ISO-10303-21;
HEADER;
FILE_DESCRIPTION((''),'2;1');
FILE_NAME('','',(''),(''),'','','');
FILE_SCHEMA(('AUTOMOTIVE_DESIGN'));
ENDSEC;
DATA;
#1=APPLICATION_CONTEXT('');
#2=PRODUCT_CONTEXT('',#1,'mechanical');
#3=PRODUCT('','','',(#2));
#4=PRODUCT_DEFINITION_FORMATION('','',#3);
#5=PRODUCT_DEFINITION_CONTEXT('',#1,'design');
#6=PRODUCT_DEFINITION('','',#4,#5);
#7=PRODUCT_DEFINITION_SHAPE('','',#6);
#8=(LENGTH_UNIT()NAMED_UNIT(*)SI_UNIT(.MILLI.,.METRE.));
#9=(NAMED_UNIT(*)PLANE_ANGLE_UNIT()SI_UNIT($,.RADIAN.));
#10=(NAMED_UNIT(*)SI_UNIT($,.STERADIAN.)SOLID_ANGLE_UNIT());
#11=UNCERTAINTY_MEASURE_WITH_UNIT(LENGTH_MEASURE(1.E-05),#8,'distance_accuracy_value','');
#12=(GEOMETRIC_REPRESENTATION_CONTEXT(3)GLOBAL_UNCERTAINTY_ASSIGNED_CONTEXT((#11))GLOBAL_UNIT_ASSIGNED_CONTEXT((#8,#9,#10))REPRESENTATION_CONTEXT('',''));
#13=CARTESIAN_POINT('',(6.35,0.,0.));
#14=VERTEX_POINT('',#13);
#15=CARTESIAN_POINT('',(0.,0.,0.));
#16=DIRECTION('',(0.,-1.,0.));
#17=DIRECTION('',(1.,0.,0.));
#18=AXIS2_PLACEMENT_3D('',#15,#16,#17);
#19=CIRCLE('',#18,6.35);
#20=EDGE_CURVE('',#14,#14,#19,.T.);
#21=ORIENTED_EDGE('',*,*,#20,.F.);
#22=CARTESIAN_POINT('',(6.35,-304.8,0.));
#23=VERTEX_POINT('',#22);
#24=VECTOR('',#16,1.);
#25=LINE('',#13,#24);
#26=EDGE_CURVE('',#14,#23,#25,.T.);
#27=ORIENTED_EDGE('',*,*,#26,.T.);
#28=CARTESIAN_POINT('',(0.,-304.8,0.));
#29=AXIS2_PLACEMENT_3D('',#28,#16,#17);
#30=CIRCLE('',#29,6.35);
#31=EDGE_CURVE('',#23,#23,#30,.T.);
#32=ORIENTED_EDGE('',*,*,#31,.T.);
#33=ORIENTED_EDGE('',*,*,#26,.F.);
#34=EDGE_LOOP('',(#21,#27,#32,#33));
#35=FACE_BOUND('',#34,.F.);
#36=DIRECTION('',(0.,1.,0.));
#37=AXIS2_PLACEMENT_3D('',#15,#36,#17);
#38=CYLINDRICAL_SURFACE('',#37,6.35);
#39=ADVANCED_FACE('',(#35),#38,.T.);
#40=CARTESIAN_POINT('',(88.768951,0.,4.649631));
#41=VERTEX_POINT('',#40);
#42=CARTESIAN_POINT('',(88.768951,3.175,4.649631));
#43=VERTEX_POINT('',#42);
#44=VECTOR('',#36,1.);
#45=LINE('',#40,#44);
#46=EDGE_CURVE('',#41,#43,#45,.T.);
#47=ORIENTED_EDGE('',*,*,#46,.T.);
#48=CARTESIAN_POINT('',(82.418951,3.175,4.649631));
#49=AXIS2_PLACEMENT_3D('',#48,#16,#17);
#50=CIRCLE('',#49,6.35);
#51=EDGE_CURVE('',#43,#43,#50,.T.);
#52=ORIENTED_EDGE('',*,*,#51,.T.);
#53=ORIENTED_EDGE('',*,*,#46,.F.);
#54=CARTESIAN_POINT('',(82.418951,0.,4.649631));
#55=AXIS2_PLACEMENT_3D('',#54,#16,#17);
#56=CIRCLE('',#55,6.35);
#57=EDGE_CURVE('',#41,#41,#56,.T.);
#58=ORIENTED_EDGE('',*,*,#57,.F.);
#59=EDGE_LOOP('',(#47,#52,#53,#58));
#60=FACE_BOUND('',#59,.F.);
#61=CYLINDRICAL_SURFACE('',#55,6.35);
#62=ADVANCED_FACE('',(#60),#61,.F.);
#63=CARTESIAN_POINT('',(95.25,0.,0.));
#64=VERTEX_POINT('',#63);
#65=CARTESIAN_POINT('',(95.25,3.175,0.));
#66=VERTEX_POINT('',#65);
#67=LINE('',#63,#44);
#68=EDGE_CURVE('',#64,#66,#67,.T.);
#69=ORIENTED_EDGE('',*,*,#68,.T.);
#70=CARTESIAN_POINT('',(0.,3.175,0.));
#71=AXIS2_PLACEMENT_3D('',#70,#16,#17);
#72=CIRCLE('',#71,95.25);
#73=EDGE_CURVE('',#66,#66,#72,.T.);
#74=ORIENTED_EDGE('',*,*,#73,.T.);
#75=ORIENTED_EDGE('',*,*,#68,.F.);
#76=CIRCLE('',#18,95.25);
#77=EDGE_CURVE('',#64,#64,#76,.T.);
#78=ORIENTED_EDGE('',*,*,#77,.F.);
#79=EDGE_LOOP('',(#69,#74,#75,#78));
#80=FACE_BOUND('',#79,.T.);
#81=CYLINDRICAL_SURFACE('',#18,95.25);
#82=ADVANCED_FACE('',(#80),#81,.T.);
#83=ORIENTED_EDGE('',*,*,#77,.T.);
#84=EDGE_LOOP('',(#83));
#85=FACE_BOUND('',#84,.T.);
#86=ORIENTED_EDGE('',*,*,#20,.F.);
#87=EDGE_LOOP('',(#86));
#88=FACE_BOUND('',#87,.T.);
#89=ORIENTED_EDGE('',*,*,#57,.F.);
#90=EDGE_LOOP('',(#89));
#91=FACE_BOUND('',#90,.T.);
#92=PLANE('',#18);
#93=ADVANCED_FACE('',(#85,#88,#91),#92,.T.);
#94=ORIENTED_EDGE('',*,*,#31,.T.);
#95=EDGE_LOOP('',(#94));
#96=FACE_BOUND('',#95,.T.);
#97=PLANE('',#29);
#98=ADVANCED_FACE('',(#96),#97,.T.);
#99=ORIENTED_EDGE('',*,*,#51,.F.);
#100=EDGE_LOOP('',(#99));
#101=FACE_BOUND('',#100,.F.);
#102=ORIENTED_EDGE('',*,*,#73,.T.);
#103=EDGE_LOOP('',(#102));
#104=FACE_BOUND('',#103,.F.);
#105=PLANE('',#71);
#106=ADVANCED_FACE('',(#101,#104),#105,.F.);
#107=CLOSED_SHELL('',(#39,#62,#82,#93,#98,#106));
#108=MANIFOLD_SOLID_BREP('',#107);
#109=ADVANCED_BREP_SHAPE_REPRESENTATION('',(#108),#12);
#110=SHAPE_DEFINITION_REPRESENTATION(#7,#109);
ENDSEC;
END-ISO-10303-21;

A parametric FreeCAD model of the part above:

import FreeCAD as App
import Part
import Sketcher
from FreeCAD import Vector
Q = App.Units.Quantity

doc = App.newDocument("Part")
body = doc.addObject("PartDesign::Body", "Body")

# Sketch on XZ plane
sketch1 = doc.addObject("Sketcher::SketchObject", "Sketch")
body.addObject(sketch1)
sketch1.AttachmentSupport = (doc.XZ_Plane, [""])
sketch1.MapMode = "FlatFace"
sketch1.addGeometry([
    Part.Circle(Vector(0, 0, 0), Vector(0, 0, 1), 95),
    Part.Circle(Vector(0, 0, 0), Vector(0, 0, 1), 6),
    Part.Circle(Vector(82, 5, 0), Vector(0, 0, 1), 6),
], False)
sketch1.addConstraint([
    Sketcher.Constraint("Coincident", 0, 3, -1, 1),
    Sketcher.Constraint("Coincident", 1, 3, -1, 1),
    Sketcher.Constraint("Equal", 1, 2),
    Sketcher.Constraint("Diameter", 0, Q("7.5 in")),
    Sketcher.Constraint("Diameter", 1, Q("0.5 in")),
    Sketcher.Constraint("DistanceX", -1, 1, 2, 3, 82.418951),
    Sketcher.Constraint("DistanceY", -1, 1, 2, 3, 4.649631),
])
pad1 = doc.addObject("PartDesign::Pad", "Pad")
body.addObject(pad1)
pad1.Profile = sketch1
pad1.Length = Q("0.125 in")
pad1.Reversed = True

# Sketch on XZ plane
sketch2 = doc.addObject("Sketcher::SketchObject", "Sketch001")
body.addObject(sketch2)
sketch2.AttachmentSupport = (doc.XZ_Plane, [""])
sketch2.MapMode = "FlatFace"
sketch2.addGeometry(Part.Circle(Vector(0, 0, 0), Vector(0, 0, 1), 6), False)
sketch2.addConstraint([
    Sketcher.Constraint("Coincident", 0, 3, -1, 1),
    Sketcher.Constraint("Diameter", 0, Q("0.5 in")),
])
pad2 = doc.addObject("PartDesign::Pad", "Pad001")
body.addObject(pad2)
pad2.Profile = sketch2
pad2.Type = "TwoLengths"
pad2.Length = Q("12 in")
pad2.Length2 = Q("0.125 in")

doc.recompute()
